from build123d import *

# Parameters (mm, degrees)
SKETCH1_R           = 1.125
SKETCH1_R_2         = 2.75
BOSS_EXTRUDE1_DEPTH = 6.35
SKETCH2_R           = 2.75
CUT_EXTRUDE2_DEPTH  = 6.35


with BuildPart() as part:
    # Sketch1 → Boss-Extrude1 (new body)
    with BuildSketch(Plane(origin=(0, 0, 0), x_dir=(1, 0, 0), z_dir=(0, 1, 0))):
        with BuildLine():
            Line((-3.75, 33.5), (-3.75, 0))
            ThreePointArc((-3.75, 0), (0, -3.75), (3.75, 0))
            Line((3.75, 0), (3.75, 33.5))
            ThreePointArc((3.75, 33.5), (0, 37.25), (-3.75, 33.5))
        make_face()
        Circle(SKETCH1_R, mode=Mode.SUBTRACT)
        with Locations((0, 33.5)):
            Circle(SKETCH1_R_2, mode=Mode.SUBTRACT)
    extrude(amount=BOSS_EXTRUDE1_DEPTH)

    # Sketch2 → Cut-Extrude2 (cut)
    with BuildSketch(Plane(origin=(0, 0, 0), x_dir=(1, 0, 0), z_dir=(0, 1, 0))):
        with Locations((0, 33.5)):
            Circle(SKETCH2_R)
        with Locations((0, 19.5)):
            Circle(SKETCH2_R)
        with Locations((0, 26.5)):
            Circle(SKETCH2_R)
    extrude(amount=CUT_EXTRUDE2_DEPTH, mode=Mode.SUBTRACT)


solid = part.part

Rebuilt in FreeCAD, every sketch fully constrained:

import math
import FreeCAD as App
import Part
import Sketcher
from FreeCAD import Vector
Q = App.Units.Quantity

doc = App.newDocument("Part")
params = doc.addObject("Spreadsheet::Sheet", "Params")
for row, (alias, value) in enumerate([
    ("sketch1_diameter", "5.5 mm"),
    ("sketch1_diameter2", "2.25 mm"),
    ("sketch1_radius", "3.75 mm"),
    ("sketch1_height", "33.5 mm"),
    ("pad1_length", "6.35 mm"),
    ("sketch2_diameter", "5.5 mm"),
    ("pocket1_length", "6.35 mm"),
], start=1):
    params.set(f"A{row}", alias)
    params.set(f"B{row}", "=" + value)
    params.setAlias(f"B{row}", alias)

body = doc.addObject("PartDesign::Body", "Body")

# Sketch on XZ plane
sketch1 = doc.addObject("Sketcher::SketchObject", "Sketch")
body.addObject(sketch1)
sketch1.AttachmentSupport = (doc.XZ_Plane, [""])
sketch1.MapMode = "FlatFace"
sketch1.addGeometry(Part.LineSegment(Vector(-3.75, -33.5, 0), Vector(-3.75, 0, 0)), False)
sketch1.addGeometry(Part.ArcOfCircle(Part.Circle(Vector(0, 0, 0), Vector(0, 0, 1), 3.75), math.radians(0), math.radians(180)), False)
sketch1.addGeometry(Part.LineSegment(Vector(3.75, 0, 0), Vector(3.75, -33.5, 0)), False)
sketch1.addGeometry(Part.ArcOfCircle(Part.Circle(Vector(0, -33.5, 0), Vector(0, 0, 1), 3.75), math.radians(180), math.radians(360)), False)
sketch1.addGeometry(Part.Circle(Vector(0, 0, 0), Vector(0, 0, 1), 1.125), False)
sketch1.addGeometry(Part.Circle(Vector(0, -33.5, 0), Vector(0, 0, 1), 2.75), False)
sketch1.addConstraint(Sketcher.Constraint("Tangent", 0, 2, 1, 2))
sketch1.addConstraint(Sketcher.Constraint("Tangent", 1, 1, 2, 1))
sketch1.addConstraint(Sketcher.Constraint("Tangent", 2, 2, 3, 2))
sketch1.addConstraint(Sketcher.Constraint("Tangent", 3, 1, 0, 1))
sketch1.addConstraint(Sketcher.Constraint("Vertical", 0))
sketch1.addConstraint(Sketcher.Constraint("Vertical", 2))
sketch1.addConstraint(Sketcher.Constraint("Coincident", 1, 3, -1, 1))
sketch1.addConstraint(Sketcher.Constraint("Coincident", 4, 3, -1, 1))
sketch1.addConstraint(Sketcher.Constraint("Coincident", 5, 3, 3, 3))
sketch1.addConstraint(Sketcher.Constraint("Diameter", 5, Q("5.5 mm")))
sketch1.addConstraint(Sketcher.Constraint("Diameter", 4, Q("2.25 mm")))
sketch1.addConstraint(Sketcher.Constraint("Radius", 1, Q("3.75 mm")))
sketch1.addConstraint(Sketcher.Constraint("DistanceY", 0, 1, 0, 2, Q("33.5 mm")))
sketch1.setExpression("Constraints[9]", "Params.sketch1_diameter")
sketch1.setExpression("Constraints[10]", "Params.sketch1_diameter2")
sketch1.setExpression("Constraints[11]", "Params.sketch1_radius")
sketch1.setExpression("Constraints[12]", "Params.sketch1_height")
pad1 = doc.addObject("PartDesign::Pad", "Pad")
body.addObject(pad1)
pad1.Profile = sketch1
pad1.setExpression("Length", "Params.pad1_length")
pad1.Reversed = True

# Sketch on XZ plane
sketch2 = doc.addObject("Sketcher::SketchObject", "Sketch001")
body.addObject(sketch2)
sketch2.AttachmentSupport = (doc.XZ_Plane, [""])
sketch2.MapMode = "FlatFace"
sketch2.addGeometry(Part.Circle(Vector(0, -33.5, 0), Vector(0, 0, 1), 2.75), False)
sketch2.addGeometry(Part.Circle(Vector(0, -19.5, 0), Vector(0, 0, 1), 2.75), False)
sketch2.addGeometry(Part.Circle(Vector(0, -26.5, 0), Vector(0, 0, 1), 2.75), False)
sketch2.addConstraint(Sketcher.Constraint("Equal", 0, 1))
sketch2.addConstraint(Sketcher.Constraint("Equal", 1, 2))
sketch2.addConstraint(Sketcher.Constraint("PointOnObject", 0, 3, -2))
sketch2.addConstraint(Sketcher.Constraint("PointOnObject", 1, 3, -2))
sketch2.addConstraint(Sketcher.Constraint("PointOnObject", 2, 3, -2))
sketch2.addConstraint(Sketcher.Constraint("Diameter", 0, Q("5.5 mm")))
sketch2.addConstraint(Sketcher.Constraint("DistanceY", 0, 3, 1, 3, Q("14 mm")))
sketch2.addConstraint(Sketcher.Constraint("DistanceY", 0, 3, 2, 3, Q("7 mm")))
sketch2.addConstraint(Sketcher.Constraint("DistanceY", 0, 3, -1, 1, Q("33.5 mm")))
sketch2.setExpression("Constraints[5]", "Params.sketch2_diameter")
pocket1 = doc.addObject("PartDesign::Pocket", "Pocket")
body.addObject(pocket1)
pocket1.Profile = sketch2
pocket1.setExpression("Length", "Params.pocket1_length")

doc.recompute()
